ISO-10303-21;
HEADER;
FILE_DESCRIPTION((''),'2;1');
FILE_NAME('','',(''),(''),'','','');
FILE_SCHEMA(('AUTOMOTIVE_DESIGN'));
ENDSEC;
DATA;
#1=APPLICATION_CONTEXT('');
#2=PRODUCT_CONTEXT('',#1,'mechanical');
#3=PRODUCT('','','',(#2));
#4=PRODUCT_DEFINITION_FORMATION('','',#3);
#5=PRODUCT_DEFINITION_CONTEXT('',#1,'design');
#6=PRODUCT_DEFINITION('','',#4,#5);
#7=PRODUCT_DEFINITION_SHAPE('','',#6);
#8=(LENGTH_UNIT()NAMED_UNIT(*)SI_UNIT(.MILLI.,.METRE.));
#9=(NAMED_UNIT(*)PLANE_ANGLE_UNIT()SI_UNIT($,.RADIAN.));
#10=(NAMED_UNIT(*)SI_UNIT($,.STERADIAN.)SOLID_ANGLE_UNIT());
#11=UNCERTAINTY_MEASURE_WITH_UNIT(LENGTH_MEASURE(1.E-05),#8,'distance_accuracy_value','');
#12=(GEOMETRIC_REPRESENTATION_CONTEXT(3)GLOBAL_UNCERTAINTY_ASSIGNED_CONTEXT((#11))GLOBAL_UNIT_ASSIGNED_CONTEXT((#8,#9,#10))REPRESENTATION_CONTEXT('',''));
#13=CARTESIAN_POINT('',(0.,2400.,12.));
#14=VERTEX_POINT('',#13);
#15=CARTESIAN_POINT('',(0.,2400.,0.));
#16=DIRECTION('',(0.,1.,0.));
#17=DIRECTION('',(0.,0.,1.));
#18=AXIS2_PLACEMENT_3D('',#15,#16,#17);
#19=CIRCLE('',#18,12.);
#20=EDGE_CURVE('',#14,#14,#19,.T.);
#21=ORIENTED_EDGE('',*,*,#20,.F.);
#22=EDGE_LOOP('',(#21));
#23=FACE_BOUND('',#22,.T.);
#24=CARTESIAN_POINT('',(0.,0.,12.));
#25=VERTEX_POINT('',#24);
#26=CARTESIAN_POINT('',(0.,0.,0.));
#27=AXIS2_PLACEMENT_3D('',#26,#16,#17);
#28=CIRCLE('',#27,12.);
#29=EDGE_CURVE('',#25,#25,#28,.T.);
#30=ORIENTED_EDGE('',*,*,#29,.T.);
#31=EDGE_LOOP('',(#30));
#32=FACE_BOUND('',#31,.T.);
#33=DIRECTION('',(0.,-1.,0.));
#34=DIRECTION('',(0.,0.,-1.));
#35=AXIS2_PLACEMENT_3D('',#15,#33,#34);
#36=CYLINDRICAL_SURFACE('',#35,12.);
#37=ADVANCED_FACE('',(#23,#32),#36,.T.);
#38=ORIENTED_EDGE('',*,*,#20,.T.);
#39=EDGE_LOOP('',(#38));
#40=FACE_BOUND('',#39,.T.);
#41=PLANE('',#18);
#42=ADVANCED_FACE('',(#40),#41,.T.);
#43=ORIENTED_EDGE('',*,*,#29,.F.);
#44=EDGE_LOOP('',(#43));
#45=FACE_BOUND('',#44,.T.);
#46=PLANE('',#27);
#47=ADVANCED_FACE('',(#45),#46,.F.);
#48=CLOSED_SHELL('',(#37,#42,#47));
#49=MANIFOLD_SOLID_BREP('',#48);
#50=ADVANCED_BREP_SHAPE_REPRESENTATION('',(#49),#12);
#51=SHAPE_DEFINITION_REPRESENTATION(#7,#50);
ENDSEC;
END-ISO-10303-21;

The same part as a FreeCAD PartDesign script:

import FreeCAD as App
import Part
import Sketcher

V = App.Vector
Q = App.Units.Quantity

doc = App.newDocument("Part")
body = doc.addObject("PartDesign::Body", "Body")

sketch1 = body.newObject("Sketcher::SketchObject", "Sketch")
sketch1.AttachmentSupport = (doc.getObject("XZ_Plane"), [""])
sketch1.MapMode = "FlatFace"
sketch1.addGeometry(Part.Circle(V(0, 0, 0), V(0, 0, 1), 12), False)
sketch1.addConstraint([
    Sketcher.Constraint("Coincident", 0, 3, -1, 1),
    Sketcher.Constraint("Diameter", 0, Q("24 mm")),
])
pad1 = body.newObject("PartDesign::Pad", "Pad")
pad1.Profile = sketch1
pad1.Length = 2400
pad1.Reversed = True

doc.recompute()
